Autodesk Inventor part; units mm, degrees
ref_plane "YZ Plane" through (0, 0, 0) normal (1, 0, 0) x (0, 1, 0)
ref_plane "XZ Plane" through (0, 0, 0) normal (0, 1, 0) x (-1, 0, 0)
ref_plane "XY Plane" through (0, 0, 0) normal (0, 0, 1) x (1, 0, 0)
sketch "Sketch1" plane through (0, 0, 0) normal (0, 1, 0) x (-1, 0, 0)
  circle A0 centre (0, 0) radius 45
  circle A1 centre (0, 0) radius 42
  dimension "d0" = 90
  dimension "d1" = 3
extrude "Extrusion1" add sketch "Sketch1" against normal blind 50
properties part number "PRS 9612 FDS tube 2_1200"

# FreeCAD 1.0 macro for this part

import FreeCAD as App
import Part
import Sketcher
from FreeCAD import Vector

doc = App.newDocument("Part")
body = doc.addObject("PartDesign::Body", "Body")

sketch1 = body.newObject("Sketcher::SketchObject", "Sketch")
sketch1.AttachmentSupport = (doc.getObject("XZ_Plane"), [""])
sketch1.MapMode = "FlatFace"
sketch1.addGeometry([
    Part.Circle(Vector(0, 0, 0), Vector(0, 0, 1), 45),
    Part.Circle(Vector(0, 0, 0), Vector(0, 0, 1), 42),
], False)
sketch1.addConstraint([
    Sketcher.Constraint("Coincident", 0, 3, -1, 1),
    Sketcher.Constraint("Coincident", 1, 3, -1, 1),
    Sketcher.Constraint("Diameter", 0, 90.0),
    Sketcher.Constraint("Diameter", 1, 84.0),
])
pad1 = body.newObject("PartDesign::Pad", "Pad")
pad1.Profile = sketch1
pad1.Length = 50

doc.recompute()
